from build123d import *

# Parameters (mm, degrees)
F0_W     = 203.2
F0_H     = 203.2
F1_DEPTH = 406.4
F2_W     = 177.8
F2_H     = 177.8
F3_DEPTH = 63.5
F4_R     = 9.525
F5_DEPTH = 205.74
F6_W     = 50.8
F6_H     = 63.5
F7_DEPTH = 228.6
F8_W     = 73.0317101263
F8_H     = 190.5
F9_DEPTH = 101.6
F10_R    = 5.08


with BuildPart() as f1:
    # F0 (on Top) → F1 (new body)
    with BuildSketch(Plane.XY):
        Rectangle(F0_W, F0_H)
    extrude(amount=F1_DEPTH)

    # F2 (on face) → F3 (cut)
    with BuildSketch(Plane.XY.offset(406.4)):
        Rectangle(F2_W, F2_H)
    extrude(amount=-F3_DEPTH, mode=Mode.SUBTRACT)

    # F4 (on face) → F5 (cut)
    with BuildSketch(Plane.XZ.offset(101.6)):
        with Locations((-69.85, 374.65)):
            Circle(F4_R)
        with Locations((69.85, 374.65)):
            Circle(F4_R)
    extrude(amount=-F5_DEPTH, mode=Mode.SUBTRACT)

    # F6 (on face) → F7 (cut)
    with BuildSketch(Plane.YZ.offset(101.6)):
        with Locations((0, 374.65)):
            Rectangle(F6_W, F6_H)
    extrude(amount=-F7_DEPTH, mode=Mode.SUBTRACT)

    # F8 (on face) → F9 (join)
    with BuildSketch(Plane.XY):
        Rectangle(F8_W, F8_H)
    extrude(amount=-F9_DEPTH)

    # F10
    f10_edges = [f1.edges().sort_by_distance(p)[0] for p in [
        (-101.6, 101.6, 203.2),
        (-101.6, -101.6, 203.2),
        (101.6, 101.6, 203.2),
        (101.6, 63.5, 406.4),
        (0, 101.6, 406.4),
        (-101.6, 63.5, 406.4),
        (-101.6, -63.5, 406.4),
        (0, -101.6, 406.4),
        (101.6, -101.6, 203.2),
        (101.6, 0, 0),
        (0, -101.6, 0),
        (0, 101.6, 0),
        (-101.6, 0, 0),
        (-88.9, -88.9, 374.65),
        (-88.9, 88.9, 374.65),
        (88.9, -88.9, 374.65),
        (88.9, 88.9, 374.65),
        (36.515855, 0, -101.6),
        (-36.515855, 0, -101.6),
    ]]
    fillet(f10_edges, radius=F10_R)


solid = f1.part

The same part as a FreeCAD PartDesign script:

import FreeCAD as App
import Part
import Sketcher
from FreeCAD import Vector
Q = App.Units.Quantity


def edges_at(feature, points):
    """Names of the edges that pass closest to the given points."""
    edges = feature.Shape.Edges
    near = lambda p: min(range(len(edges)), key=lambda i: edges[i].distToShape(Part.Vertex(*p))[0])
    return sorted({f"Edge{near(p) + 1}" for p in points})


def add_polygon(sketch, points):
    """Adds a closed chain of lines whose ends are joined by coincident constraints."""
    first, n = sketch.GeometryCount, len(points)
    for a, b in zip(points, points[1:] + points[:1]):
        sketch.addGeometry(Part.LineSegment(App.Vector(*a, 0), App.Vector(*b, 0)), False)
    for i in range(n):
        sketch.addConstraint(Sketcher.Constraint("Coincident", first + i, 2, first + (i + 1) % n, 1))

doc = App.newDocument("Part")
body = doc.addObject("PartDesign::Body", "Body")

# Sketch on XY plane
sketch1 = body.newObject("Sketcher::SketchObject", "Sketch")
sketch1.AttachmentSupport = (doc.getObject("XY_Plane"), [""])
sketch1.MapMode = "FlatFace"
add_polygon(sketch1, [(-102, 102), (-102, -102), (102, -102), (102, 102)])  # lines 0-3
sketch1.addConstraint([
    Sketcher.Constraint("Vertical", 0),
    Sketcher.Constraint("Horizontal", 1),
    Sketcher.Constraint("Vertical", 2),
    Sketcher.Constraint("Horizontal", 3),
    Sketcher.Constraint("Symmetric", 0, 2, 2, 2, -1, 1),
    Sketcher.Constraint("Equal", 3, 0),
    Sketcher.Constraint("DistanceX", 1, 1, 1, 2, Q("8 in")),
])
pad1 = body.newObject("PartDesign::Pad", "Pad")
pad1.Profile = sketch1
pad1.Length = Q("16 in")

# Sketch on XY plane
sketch2 = body.newObject("Sketcher::SketchObject", "Sketch001")
sketch2.AttachmentSupport = (doc.getObject("XY_Plane"), [""])
sketch2.MapMode = "FlatFace"
sketch2.AttachmentOffset = App.Placement(Vector(0, 0, 16 * 25.4), App.Rotation())
add_polygon(sketch2, [(-89, 89), (-89, -89), (89, -89), (89, 89)])  # lines 0-3
sketch2.addConstraint([
    Sketcher.Constraint("Vertical", 0),
    Sketcher.Constraint("Horizontal", 1),
    Sketcher.Constraint("Vertical", 2),
    Sketcher.Constraint("Horizontal", 3),
    Sketcher.Constraint("Symmetric", 0, 2, 2, 2, -1, 1),
    Sketcher.Constraint("Equal", 3, 0),
    Sketcher.Constraint("DistanceX", 1, 1, 1, 2, Q("7 in")),
])
pocket1 = body.newObject("PartDesign::Pocket", "Pocket")
pocket1.Profile = sketch2
pocket1.Length = Q("2.5 in")

# Sketch on XZ plane
sketch3 = body.newObject("Sketcher::SketchObject", "Sketch002")
sketch3.AttachmentSupport = (doc.getObject("XZ_Plane"), [""])
sketch3.MapMode = "FlatFace"
sketch3.AttachmentOffset = App.Placement(Vector(0, 0, 4 * 25.4), App.Rotation())
sketch3.addGeometry([
    Part.Circle(Vector(-70, 375, 0), Vector(0, 0, 1), 10),
    Part.Circle(Vector(70, 375, 0), Vector(0, 0, 1), 10),
], False)
sketch3.addConstraint([
    Sketcher.Constraint("Equal", 0, 1),
    Sketcher.Constraint("Symmetric", 0, 3, 1, 3, -2),
    Sketcher.Constraint("Diameter", 0, Q("0.75 in")),
    Sketcher.Constraint("DistanceX", 0, 3, 1, 3, Q("5.5 in")),
    Sketcher.Constraint("DistanceY", -1, 1, 0, 3, Q("14.75 in")),
])
pocket2 = body.newObject("PartDesign::Pocket", "Pocket001")
pocket2.Profile = sketch3
pocket2.Length = Q("8.1 in")

# Sketch on YZ plane
sketch4 = body.newObject("Sketcher::SketchObject", "Sketch003")
sketch4.AttachmentSupport = (doc.getObject("YZ_Plane"), [""])
sketch4.MapMode = "FlatFace"
sketch4.AttachmentOffset = App.Placement(Vector(0, 0, 4 * 25.4), App.Rotation())
add_polygon(sketch4, [(-25, 406), (-25, 343), (25, 343), (25, 406)])  # lines 0-3
sketch4.addConstraint([
    Sketcher.Constraint("Vertical", 0),
    Sketcher.Constraint("Horizontal", 1),
    Sketcher.Constraint("Vertical", 2),
    Sketcher.Constraint("Horizontal", 3),
    Sketcher.Constraint("DistanceX", 1, 1, 1, 2, Q("2 in")),
    Sketcher.Constraint("DistanceY", 0, 2, 0, 1, Q("2.5 in")),
    Sketcher.Constraint("DistanceX", 0, 2, -1, 1, Q("1 in")),
    Sketcher.Constraint("DistanceY", -1, 1, 2, 2, Q("16 in")),
])
pocket3 = body.newObject("PartDesign::Pocket", "Pocket002")
pocket3.Profile = sketch4
pocket3.Length = Q("9 in")

# Sketch on XY plane
sketch5 = body.newObject("Sketcher::SketchObject", "Sketch004")
sketch5.AttachmentSupport = (doc.getObject("XY_Plane"), [""])
sketch5.MapMode = "FlatFace"
add_polygon(sketch5, [(-37, 95), (-37, -95), (37, -95), (37, 95)])  # lines 0-3
sketch5.addConstraint([
    Sketcher.Constraint("Vertical", 0),
    Sketcher.Constraint("Horizontal", 1),
    Sketcher.Constraint("Vertical", 2),
    Sketcher.Constraint("Horizontal", 3),
    Sketcher.Constraint("Symmetric", 0, 2, 2, 2, -1, 1),
    Sketcher.Constraint("DistanceY", 0, 2, 0, 1, Q("7.5 in")),
    Sketcher.Constraint("DistanceX", 1, 1, 1, 2, Q("73.03171 mm")),
])
pad2 = body.newObject("PartDesign::Pad", "Pad001")
pad2.Profile = sketch5
pad2.Length = Q("4 in")
pad2.Reversed = True
doc.recompute()

fillet = body.newObject("PartDesign::Fillet", "Fillet")
fillet.Base = (pad2, edges_at(pad2, [
    (-101.6, 101.6, 203.2),
    (-101.6, -101.6, 203.2),
    (101.6, 101.6, 203.2),
    (101.6, 63.5, 406.4),
    (0, 101.6, 406.4),
    (-101.6, 63.5, 406.4),
    (-101.6, -63.5, 406.4),
    (0, -101.6, 406.4),
    (101.6, -101.6, 203.2),
    (101.6, 0, 0),
    (0, -101.6, 0),
    (0, 101.6, 0),
    (-101.6, 0, 0),
    (-88.9, -88.9, 374.65),
    (-88.9, 88.9, 374.65),
    (88.9, -88.9, 374.65),
    (88.9, 88.9, 374.65),
    (36.516, 0, -101.6),
    (-36.516, 0, -101.6),
]))
fillet.Radius = Q("0.2 in")

doc.recompute()
